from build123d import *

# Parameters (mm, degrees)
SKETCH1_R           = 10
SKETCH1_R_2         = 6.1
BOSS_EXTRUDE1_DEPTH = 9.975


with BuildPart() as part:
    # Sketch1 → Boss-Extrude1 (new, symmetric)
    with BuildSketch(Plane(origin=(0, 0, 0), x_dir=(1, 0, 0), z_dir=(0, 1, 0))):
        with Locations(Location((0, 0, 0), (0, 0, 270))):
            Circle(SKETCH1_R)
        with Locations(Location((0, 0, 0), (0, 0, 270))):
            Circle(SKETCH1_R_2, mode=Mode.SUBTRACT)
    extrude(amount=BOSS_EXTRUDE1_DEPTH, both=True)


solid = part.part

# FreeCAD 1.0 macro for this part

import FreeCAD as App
import Part
import Sketcher
from FreeCAD import Vector

doc = App.newDocument("Part")
params = doc.addObject("Spreadsheet::Sheet", "Params")
for row, (alias, value) in enumerate([
    ("sketch1_diameter", "20 mm"),
    ("sketch1_diameter2", "12.2 mm"),
    ("pad1_length", "19.95 mm"),
], start=1):
    params.set(f"A{row}", alias)
    params.set(f"B{row}", "=" + value)
    params.setAlias(f"B{row}", alias)

body = doc.addObject("PartDesign::Body", "Body")

# Sketch on XZ plane
sketch1 = body.newObject("Sketcher::SketchObject", "Sketch")
sketch1.AttachmentSupport = (doc.getObject("XZ_Plane"), [""])
sketch1.MapMode = "FlatFace"
sketch1.addGeometry([
    Part.Circle(Vector(0, 0, 0), Vector(0, 0, 1), 10),
    Part.Circle(Vector(0, 0, 0), Vector(0, 0, 1), 6),
], False)
sketch1.addConstraint([
    Sketcher.Constraint("Coincident", 0, 3, -1, 1),
    Sketcher.Constraint("Coincident", 1, 3, -1, 1),
    Sketcher.Constraint("Diameter", 0, 20.0),
    Sketcher.Constraint("Diameter", 1, 12.2),
])
sketch1.setExpression("Constraints[2]", "Params.sketch1_diameter")
sketch1.setExpression("Constraints[3]", "Params.sketch1_diameter2")
pad1 = body.newObject("PartDesign::Pad", "Pad")
pad1.Profile = sketch1
pad1.setExpression("Length", "Params.pad1_length")
pad1.Midplane = True

doc.recompute()
